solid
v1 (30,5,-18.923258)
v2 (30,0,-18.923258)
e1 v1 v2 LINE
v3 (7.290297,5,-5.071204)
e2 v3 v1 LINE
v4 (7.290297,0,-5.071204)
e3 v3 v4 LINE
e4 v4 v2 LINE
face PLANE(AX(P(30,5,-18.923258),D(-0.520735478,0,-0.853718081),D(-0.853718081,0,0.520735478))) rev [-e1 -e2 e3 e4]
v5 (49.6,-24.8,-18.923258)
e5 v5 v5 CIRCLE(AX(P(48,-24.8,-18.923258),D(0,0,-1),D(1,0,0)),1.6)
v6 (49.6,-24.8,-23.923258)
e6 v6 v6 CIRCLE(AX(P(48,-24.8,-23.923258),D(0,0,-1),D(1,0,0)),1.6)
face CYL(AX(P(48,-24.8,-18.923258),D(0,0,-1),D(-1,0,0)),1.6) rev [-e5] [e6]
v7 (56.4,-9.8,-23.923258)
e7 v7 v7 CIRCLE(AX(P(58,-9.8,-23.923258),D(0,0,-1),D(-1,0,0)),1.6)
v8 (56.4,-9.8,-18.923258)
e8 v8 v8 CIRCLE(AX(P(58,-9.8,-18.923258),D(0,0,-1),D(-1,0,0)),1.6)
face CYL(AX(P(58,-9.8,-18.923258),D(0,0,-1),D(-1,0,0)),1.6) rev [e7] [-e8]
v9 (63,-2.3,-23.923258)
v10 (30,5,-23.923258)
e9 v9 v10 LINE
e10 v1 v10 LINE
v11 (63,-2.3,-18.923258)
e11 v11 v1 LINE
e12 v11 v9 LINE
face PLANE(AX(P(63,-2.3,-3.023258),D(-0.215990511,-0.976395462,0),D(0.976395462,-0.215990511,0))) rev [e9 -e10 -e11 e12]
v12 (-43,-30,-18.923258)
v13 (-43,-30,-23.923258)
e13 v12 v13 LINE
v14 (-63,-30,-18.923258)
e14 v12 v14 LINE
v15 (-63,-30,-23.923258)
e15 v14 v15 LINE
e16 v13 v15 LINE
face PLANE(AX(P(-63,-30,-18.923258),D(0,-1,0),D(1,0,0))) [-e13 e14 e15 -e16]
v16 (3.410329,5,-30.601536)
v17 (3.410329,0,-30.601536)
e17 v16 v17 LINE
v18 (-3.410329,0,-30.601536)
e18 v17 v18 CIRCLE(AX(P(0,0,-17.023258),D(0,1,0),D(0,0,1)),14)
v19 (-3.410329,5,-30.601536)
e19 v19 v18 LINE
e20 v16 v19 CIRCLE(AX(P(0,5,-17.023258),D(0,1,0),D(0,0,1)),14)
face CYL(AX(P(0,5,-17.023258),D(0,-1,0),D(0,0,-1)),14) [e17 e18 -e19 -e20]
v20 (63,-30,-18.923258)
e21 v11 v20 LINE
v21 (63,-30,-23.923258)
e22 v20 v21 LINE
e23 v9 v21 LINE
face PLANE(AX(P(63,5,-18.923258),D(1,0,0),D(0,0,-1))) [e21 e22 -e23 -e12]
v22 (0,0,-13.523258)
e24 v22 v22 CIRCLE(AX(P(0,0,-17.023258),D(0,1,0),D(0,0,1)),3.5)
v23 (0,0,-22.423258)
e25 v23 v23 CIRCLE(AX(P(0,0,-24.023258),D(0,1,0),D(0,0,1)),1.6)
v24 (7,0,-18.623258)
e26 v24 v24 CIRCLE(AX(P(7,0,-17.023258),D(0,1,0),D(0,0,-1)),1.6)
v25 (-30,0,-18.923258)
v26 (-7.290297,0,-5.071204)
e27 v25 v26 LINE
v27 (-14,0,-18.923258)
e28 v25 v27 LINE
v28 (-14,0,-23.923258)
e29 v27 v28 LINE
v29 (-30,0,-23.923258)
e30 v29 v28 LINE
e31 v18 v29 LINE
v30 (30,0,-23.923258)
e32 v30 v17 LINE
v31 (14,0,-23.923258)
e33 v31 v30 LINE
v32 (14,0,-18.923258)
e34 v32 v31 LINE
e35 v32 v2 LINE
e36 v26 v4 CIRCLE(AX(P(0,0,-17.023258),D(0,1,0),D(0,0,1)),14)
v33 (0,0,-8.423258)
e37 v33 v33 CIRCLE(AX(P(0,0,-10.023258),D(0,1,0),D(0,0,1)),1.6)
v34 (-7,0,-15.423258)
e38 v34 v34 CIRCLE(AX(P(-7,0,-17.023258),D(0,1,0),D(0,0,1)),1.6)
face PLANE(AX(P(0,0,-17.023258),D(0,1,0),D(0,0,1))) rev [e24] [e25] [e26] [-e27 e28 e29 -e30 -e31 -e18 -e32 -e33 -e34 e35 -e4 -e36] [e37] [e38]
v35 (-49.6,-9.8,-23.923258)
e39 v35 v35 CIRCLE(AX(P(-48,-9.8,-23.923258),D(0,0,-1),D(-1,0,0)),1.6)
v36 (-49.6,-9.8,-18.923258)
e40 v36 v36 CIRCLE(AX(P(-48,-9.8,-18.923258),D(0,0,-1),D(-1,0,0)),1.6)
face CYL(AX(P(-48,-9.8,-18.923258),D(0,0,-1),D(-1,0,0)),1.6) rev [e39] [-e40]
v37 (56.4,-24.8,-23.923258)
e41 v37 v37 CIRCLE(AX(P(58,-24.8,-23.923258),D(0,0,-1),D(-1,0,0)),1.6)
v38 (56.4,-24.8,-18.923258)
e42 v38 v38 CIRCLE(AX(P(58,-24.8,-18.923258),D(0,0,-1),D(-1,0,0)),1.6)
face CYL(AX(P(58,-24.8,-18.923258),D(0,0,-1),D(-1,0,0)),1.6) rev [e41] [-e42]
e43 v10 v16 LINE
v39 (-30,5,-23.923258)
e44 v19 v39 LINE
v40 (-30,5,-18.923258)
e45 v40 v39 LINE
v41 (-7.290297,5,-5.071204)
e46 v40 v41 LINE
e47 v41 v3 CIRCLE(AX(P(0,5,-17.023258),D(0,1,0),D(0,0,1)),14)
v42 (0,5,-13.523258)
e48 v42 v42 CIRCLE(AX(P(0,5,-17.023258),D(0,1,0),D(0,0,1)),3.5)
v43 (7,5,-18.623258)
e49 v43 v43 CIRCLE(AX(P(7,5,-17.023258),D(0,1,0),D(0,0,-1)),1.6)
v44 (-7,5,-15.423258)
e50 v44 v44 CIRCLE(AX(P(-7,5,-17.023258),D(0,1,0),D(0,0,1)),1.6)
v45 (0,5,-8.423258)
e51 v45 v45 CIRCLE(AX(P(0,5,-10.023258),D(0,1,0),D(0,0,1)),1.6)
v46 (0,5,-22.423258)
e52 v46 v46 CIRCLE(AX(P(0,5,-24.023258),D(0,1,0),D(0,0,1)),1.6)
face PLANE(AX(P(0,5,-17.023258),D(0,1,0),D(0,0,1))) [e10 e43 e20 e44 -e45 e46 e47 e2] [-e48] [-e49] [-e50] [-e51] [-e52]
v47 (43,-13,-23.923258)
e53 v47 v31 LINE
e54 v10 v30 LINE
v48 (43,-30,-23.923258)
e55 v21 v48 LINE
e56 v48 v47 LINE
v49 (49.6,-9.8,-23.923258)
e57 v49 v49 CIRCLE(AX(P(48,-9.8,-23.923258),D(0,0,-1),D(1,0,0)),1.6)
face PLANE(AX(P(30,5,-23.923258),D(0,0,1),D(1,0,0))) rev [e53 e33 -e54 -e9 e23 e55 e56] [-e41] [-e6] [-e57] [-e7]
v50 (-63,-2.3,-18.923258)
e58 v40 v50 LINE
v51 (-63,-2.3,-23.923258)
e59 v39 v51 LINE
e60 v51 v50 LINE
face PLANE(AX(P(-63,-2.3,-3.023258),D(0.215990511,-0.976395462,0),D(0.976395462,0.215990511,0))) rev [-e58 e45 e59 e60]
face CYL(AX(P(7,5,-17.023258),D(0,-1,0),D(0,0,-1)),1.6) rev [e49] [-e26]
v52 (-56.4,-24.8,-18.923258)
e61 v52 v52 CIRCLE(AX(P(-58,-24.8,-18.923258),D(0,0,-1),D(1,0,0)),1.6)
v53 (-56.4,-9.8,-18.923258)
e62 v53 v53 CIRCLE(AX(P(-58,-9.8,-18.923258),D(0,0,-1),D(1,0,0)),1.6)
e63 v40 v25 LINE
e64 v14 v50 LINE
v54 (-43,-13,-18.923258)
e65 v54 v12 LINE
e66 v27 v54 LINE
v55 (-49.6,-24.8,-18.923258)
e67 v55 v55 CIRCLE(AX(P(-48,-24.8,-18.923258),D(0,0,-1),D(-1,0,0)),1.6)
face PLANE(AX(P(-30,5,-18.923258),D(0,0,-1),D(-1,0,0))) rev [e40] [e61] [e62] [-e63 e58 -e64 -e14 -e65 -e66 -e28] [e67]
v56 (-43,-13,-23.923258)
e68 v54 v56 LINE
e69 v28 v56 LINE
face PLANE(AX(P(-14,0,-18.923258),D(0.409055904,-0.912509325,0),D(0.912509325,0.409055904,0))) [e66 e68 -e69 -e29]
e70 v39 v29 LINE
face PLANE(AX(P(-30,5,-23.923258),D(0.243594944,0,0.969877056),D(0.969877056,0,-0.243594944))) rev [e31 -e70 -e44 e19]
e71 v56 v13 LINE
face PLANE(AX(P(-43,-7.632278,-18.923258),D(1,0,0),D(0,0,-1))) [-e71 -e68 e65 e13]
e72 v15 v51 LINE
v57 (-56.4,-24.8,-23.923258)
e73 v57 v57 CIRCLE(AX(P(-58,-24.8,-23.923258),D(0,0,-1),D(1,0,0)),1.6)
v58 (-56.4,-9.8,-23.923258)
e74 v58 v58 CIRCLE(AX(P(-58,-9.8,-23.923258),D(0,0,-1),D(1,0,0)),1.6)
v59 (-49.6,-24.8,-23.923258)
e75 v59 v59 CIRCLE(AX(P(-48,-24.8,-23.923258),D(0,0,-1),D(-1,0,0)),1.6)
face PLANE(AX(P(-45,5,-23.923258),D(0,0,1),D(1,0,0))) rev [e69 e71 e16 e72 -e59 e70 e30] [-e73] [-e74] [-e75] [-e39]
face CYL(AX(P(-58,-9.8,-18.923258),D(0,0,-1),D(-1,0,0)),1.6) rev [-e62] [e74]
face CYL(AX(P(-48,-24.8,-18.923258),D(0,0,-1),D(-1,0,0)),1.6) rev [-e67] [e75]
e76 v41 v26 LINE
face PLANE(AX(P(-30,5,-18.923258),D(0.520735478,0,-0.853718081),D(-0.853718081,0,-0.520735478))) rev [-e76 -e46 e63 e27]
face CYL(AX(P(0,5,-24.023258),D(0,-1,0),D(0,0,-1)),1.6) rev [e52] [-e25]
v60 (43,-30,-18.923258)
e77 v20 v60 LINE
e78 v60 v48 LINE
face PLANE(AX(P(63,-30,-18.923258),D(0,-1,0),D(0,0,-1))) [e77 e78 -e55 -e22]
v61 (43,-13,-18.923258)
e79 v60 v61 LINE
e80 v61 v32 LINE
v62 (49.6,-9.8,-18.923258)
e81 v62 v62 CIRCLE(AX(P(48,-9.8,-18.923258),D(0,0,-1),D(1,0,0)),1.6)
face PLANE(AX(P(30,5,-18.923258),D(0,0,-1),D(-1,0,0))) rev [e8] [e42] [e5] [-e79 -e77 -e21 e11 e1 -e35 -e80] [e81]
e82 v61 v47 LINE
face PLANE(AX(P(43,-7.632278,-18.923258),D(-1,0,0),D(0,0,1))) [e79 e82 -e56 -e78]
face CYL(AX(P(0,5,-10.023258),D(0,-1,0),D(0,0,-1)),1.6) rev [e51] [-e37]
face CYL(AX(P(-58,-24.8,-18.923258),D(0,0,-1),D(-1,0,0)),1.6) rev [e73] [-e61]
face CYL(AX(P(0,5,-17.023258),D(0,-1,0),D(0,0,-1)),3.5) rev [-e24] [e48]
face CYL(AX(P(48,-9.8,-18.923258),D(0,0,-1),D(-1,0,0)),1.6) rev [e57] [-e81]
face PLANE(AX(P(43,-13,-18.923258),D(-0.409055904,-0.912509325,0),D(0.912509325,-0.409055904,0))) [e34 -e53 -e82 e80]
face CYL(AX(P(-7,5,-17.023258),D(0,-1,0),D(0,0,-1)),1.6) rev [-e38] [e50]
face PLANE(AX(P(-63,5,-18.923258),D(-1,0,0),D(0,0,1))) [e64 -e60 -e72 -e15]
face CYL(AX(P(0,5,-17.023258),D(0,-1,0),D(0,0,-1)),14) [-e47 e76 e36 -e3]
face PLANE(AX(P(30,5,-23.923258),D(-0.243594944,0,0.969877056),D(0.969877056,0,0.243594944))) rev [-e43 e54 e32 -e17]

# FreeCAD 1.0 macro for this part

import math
import FreeCAD as App
import Part
import Sketcher
from FreeCAD import Vector


def add_polygon(sketch, points):
    """Adds a closed chain of lines whose ends are joined by coincident constraints."""
    first, n = sketch.GeometryCount, len(points)
    for a, b in zip(points, points[1:] + points[:1]):
        sketch.addGeometry(Part.LineSegment(App.Vector(*a, 0), App.Vector(*b, 0)), False)
    for i in range(n):
        sketch.addConstraint(Sketcher.Constraint("Coincident", first + i, 2, first + (i + 1) % n, 1))

doc = App.newDocument("Part")
body = doc.addObject("PartDesign::Body", "Body")

# Sketch on XZ plane
sketch1 = body.newObject("Sketcher::SketchObject", "Sketch")
sketch1.AttachmentSupport = (doc.getObject("XZ_Plane"), [""])
sketch1.MapMode = "FlatFace"
sketch1.addGeometry(Part.LineSegment(Vector(45, -23.923258, 0), Vector(30, -23.923258, 0)), False)
sketch1.addGeometry(Part.LineSegment(Vector(30, -23.923258, 0), Vector(3.410329, -30.601536, 0)), False)
sketch1.addGeometry(Part.ArcOfCircle(Part.Circle(Vector(0, -17.023257, 0), Vector(0, 0, 1), 14), math.radians(-104.098814), math.radians(-75.901186)), False)
sketch1.addGeometry(Part.LineSegment(Vector(-3.410329, -30.601536, 0), Vector(-30, -23.923258, 0)), False)
sketch1.addGeometry(Part.LineSegment(Vector(-30, -23.923258, 0), Vector(-45, -23.923258, 0)), False)
sketch1.addGeometry(Part.LineSegment(Vector(-45, -23.923258, 0), Vector(-45, -18.923258, 0)), False)
sketch1.addGeometry(Part.LineSegment(Vector(-45, -18.923258, 0), Vector(-30, -18.923258, 0)), False)
sketch1.addGeometry(Part.LineSegment(Vector(-30, -18.923258, 0), Vector(-7.290297, -5.071204, 0)), False)
sketch1.addGeometry(Part.ArcOfCircle(Part.Circle(Vector(0, -17.023258, 0), Vector(0, 0, 1), 14), math.radians(58.618401), math.radians(121.381599)), False)
sketch1.addGeometry(Part.LineSegment(Vector(7.290297, -5.071204, 0), Vector(30, -18.923258, 0)), False)
sketch1.addGeometry(Part.LineSegment(Vector(30, -18.923258, 0), Vector(45, -18.923258, 0)), False)
sketch1.addGeometry(Part.LineSegment(Vector(45, -18.923258, 0), Vector(45, -23.923258, 0)), False)
sketch1.addGeometry(Part.Circle(Vector(0, -10.023258, 0), Vector(0, 0, 1), 1.6), False)
sketch1.addGeometry(Part.Circle(Vector(7, -17.023258, 0), Vector(0, 0, 1), 1.6), False)
sketch1.addGeometry(Part.Circle(Vector(0, -17.023258, 0), Vector(0, 0, 1), 3.5), False)
sketch1.addGeometry(Part.Circle(Vector(-7, -17.023258, 0), Vector(0, 0, 1), 1.6), False)
sketch1.addGeometry(Part.Circle(Vector(0, -24.023258, 0), Vector(0, 0, 1), 1.6), False)
sketch1.addConstraint(Sketcher.Constraint("Coincident", 0, 2, 1, 1))
sketch1.addConstraint(Sketcher.Constraint("Tangent", 1, 2, 2, 2))
sketch1.addConstraint(Sketcher.Constraint("Tangent", 2, 1, 3, 1))
sketch1.addConstraint(Sketcher.Constraint("Coincident", 3, 2, 4, 1))
sketch1.addConstraint(Sketcher.Constraint("Coincident", 4, 2, 5, 1))
sketch1.addConstraint(Sketcher.Constraint("Coincident", 5, 2, 6, 1))
sketch1.addConstraint(Sketcher.Constraint("Coincident", 6, 2, 7, 1))
sketch1.addConstraint(Sketcher.Constraint("Tangent", 7, 2, 8, 2))
sketch1.addConstraint(Sketcher.Constraint("Tangent", 8, 1, 9, 1))
sketch1.addConstraint(Sketcher.Constraint("Coincident", 9, 2, 10, 1))
sketch1.addConstraint(Sketcher.Constraint("Coincident", 10, 2, 11, 1))
sketch1.addConstraint(Sketcher.Constraint("Coincident", 11, 2, 0, 1))
sketch1.addConstraint(Sketcher.Constraint("Horizontal", 0))
sketch1.addConstraint(Sketcher.Constraint("Horizontal", 4))
sketch1.addConstraint(Sketcher.Constraint("Vertical", 5))
sketch1.addConstraint(Sketcher.Constraint("Horizontal", 6))
sketch1.addConstraint(Sketcher.Constraint("Horizontal", 10))
sketch1.addConstraint(Sketcher.Constraint("Vertical", 11))
sketch1.addConstraint(Sketcher.Constraint("Coincident", 8, 3, 2, 3))
sketch1.addConstraint(Sketcher.Constraint("Coincident", 14, 3, 2, 3))
sketch1.addConstraint(Sketcher.Constraint("Equal", 2, 8))
sketch1.addConstraint(Sketcher.Constraint("Equal", 12, 13))
sketch1.addConstraint(Sketcher.Constraint("Equal", 13, 15))
sketch1.addConstraint(Sketcher.Constraint("Equal", 15, 16))
sketch1.addConstraint(Sketcher.Constraint("Symmetric", 13, 3, 15, 3, -2))
sketch1.addConstraint(Sketcher.Constraint("Symmetric", 1, 2, 2, 1, -2))
sketch1.addConstraint(Sketcher.Constraint("Symmetric", 6, 2, 9, 2, -2))
sketch1.addConstraint(Sketcher.Constraint("Symmetric", 4, 2, 11, 2, -2))
sketch1.addConstraint(Sketcher.Constraint("PointOnObject", 12, 3, -2))
sketch1.addConstraint(Sketcher.Constraint("PointOnObject", 16, 3, -2))
sketch1.addConstraint(Sketcher.Constraint("Horizontal", 8, 3, 13, 3))
sketch1.addConstraint(Sketcher.Constraint("Vertical", 3, 2, 6, 2))
sketch1.addConstraint(Sketcher.Constraint("Diameter", 14, 7.0))
sketch1.addConstraint(Sketcher.Constraint("Radius", 2, 14.0))
sketch1.addConstraint(Sketcher.Constraint("Diameter", 12, 3.2))
sketch1.addConstraint(Sketcher.Constraint("DistanceX", 0, 2, 0, 1, 15.0))
sketch1.addConstraint(Sketcher.Constraint("DistanceY", 5, 1, 5, 2, 5.0))
sketch1.addConstraint(Sketcher.Constraint("DistanceX", -1, 1, 13, 3, 7.0))
sketch1.addConstraint(Sketcher.Constraint("DistanceX", -1, 1, 0, 2, 30.0))
sketch1.addConstraint(Sketcher.Constraint("DistanceY", 2, 3, 12, 3, 7.0))
sketch1.addConstraint(Sketcher.Constraint("DistanceY", 16, 3, 14, 3, 7.0))
sketch1.addConstraint(Sketcher.Constraint("DistanceY", 0, 2, 13, 3, 6.9))
sketch1.addConstraint(Sketcher.Constraint("DistanceY", 2, 3, -1, 1, 17.023257))
pad1 = body.newObject("PartDesign::Pad", "Pad")
pad1.Profile = sketch1
pad1.Length = 5
pad1.Reversed = True

# Sketch on XY plane
sketch2 = body.newObject("Sketcher::SketchObject", "Sketch001")
sketch2.AttachmentSupport = (doc.getObject("XY_Plane"), [""])
sketch2.MapMode = "FlatFace"
sketch2.AttachmentOffset = App.Placement(Vector(0, 0, -23.923258), App.Rotation())
add_polygon(sketch2, [(63, 5), (63, -30), (43, -30), (43, 5)])  # lines 0-3
sketch2.addGeometry(Part.Circle(Vector(58, -24.8, 0), Vector(0, 0, 1), 1.6), False)  # 4
sketch2.addGeometry(Part.Circle(Vector(48, -24.8, 0), Vector(0, 0, 1), 1.6), False)  # 5
sketch2.addGeometry(Part.Circle(Vector(58, -9.8, 0), Vector(0, 0, 1), 1.6), False)  # 6
sketch2.addGeometry(Part.Circle(Vector(48, -9.8, 0), Vector(0, 0, 1), 1.6), False)  # 7
add_polygon(sketch2, [(-43, -30), (-63, -30), (-63, 5), (-43, 5)])  # lines 8-11
sketch2.addGeometry(Part.Circle(Vector(-48, -24.8, 0), Vector(0, 0, 1), 1.6), False)  # 12
sketch2.addGeometry(Part.Circle(Vector(-58, -24.8, 0), Vector(0, 0, 1), 1.6), False)  # 13
sketch2.addGeometry(Part.Circle(Vector(-48, -9.8, 0), Vector(0, 0, 1), 1.6), False)  # 14
sketch2.addGeometry(Part.Circle(Vector(-58, -9.8, 0), Vector(0, 0, 1), 1.6), False)  # 15
sketch2.addConstraint(Sketcher.Constraint("Vertical", 0))
sketch2.addConstraint(Sketcher.Constraint("Horizontal", 1))
sketch2.addConstraint(Sketcher.Constraint("Vertical", 2))
sketch2.addConstraint(Sketcher.Constraint("Horizontal", 3))
sketch2.addConstraint(Sketcher.Constraint("Horizontal", 8))
sketch2.addConstraint(Sketcher.Constraint("Vertical", 9))
sketch2.addConstraint(Sketcher.Constraint("Horizontal", 10))
sketch2.addConstraint(Sketcher.Constraint("Vertical", 11))
sketch2.addConstraint(Sketcher.Constraint("Equal", 4, 5))
sketch2.addConstraint(Sketcher.Constraint("Equal", 5, 6))
sketch2.addConstraint(Sketcher.Constraint("Equal", 6, 7))
sketch2.addConstraint(Sketcher.Constraint("Equal", 7, 12))
sketch2.addConstraint(Sketcher.Constraint("Equal", 12, 13))
sketch2.addConstraint(Sketcher.Constraint("Equal", 13, 14))
sketch2.addConstraint(Sketcher.Constraint("Equal", 14, 15))
sketch2.addConstraint(Sketcher.Constraint("Symmetric", 5, 3, 12, 3, -2))
sketch2.addConstraint(Sketcher.Constraint("Symmetric", 4, 3, 13, 3, -2))
sketch2.addConstraint(Sketcher.Constraint("Symmetric", 7, 3, 14, 3, -2))
sketch2.addConstraint(Sketcher.Constraint("Symmetric", 6, 3, 15, 3, -2))
sketch2.addConstraint(Sketcher.Constraint("Symmetric", 0, 2, 8, 2, -2))
sketch2.addConstraint(Sketcher.Constraint("Symmetric", 2, 2, 10, 2, -2))
sketch2.addConstraint(Sketcher.Constraint("Horizontal", 4, 3, 5, 3))
sketch2.addConstraint(Sketcher.Constraint("Horizontal", 6, 3, 7, 3))
sketch2.addConstraint(Sketcher.Constraint("Vertical", 4, 3, 6, 3))
sketch2.addConstraint(Sketcher.Constraint("Vertical", 5, 3, 7, 3))
sketch2.addConstraint(Sketcher.Constraint("Diameter", 4, 3.2))
sketch2.addConstraint(Sketcher.Constraint("DistanceX", 1, 2, 1, 1, 20.0))
sketch2.addConstraint(Sketcher.Constraint("DistanceY", 0, 2, 0, 1, 35.0))
sketch2.addConstraint(Sketcher.Constraint("DistanceX", -1, 1, 4, 3, 58.0))
sketch2.addConstraint(Sketcher.Constraint("DistanceX", -1, 1, 5, 3, 48.0))
sketch2.addConstraint(Sketcher.Constraint("DistanceX", -1, 1, 0, 2, 63.0))
sketch2.addConstraint(Sketcher.Constraint("DistanceY", 0, 2, -1, 1, 30.0))
sketch2.addConstraint(Sketcher.Constraint("DistanceY", 4, 3, 6, 3, 15.0))
sketch2.addConstraint(Sketcher.Constraint("DistanceY", 4, 3, -1, 1, 24.8))
pad2 = body.newObject("PartDesign::Pad", "Pad001")
pad2.Profile = sketch2
pad2.Length = 5

# Sketch on XY plane
sketch3 = body.newObject("Sketcher::SketchObject", "Sketch002")
sketch3.AttachmentSupport = (doc.getObject("XY_Plane"), [""])
sketch3.MapMode = "FlatFace"
sketch3.AttachmentOffset = App.Placement(Vector(0, 0, -23.923258), App.Rotation())
add_polygon(sketch3, [(-14, 0), (-43, -13), (-43, 0)])  # lines 0-2
add_polygon(sketch3, [(14, 0), (43, 0), (43, -13)])  # lines 3-5
sketch3.addConstraint(Sketcher.Constraint("Vertical", 1))
sketch3.addConstraint(Sketcher.Constraint("Horizontal", 2))
sketch3.addConstraint(Sketcher.Constraint("Horizontal", 3))
sketch3.addConstraint(Sketcher.Constraint("Vertical", 4))
sketch3.addConstraint(Sketcher.Constraint("Symmetric", 1, 2, 3, 2, -1, 1))
sketch3.addConstraint(Sketcher.Constraint("Symmetric", 2, 2, 5, 2, -2))
sketch3.addConstraint(Sketcher.Constraint("Horizontal", 0, 2, 4, 2))
sketch3.addConstraint(Sketcher.Constraint("DistanceX", 2, 1, 2, 2, 29.0))
sketch3.addConstraint(Sketcher.Constraint("DistanceY", 1, 1, 1, 2, 13.0))
sketch3.addConstraint(Sketcher.Constraint("DistanceX", 0, 2, -1, 1, 43.0))
pad3 = body.newObject("PartDesign::Pad", "Pad002")
pad3.Profile = sketch3
pad3.Length = 5

# Sketch on XY plane
sketch4 = body.newObject("Sketcher::SketchObject", "Sketch003")
sketch4.AttachmentSupport = (doc.getObject("XY_Plane"), [""])
sketch4.MapMode = "FlatFace"
sketch4.AttachmentOffset = App.Placement(Vector(0, 0, -23.923258), App.Rotation())
add_polygon(sketch4, [(63, -2.3), (30, 5), (63, 5)])  # lines 0-2
add_polygon(sketch4, [(-30, 5), (-63, -2.3), (-63, 5)])  # lines 3-5
sketch4.addConstraint(Sketcher.Constraint("Horizontal", 1))
sketch4.addConstraint(Sketcher.Constraint("Vertical", 2))
sketch4.addConstraint(Sketcher.Constraint("Vertical", 4))
sketch4.addConstraint(Sketcher.Constraint("Horizontal", 5))
sketch4.addConstraint(Sketcher.Constraint("Symmetric", 2, 2, 3, 2, -2))
sketch4.addConstraint(Sketcher.Constraint("Symmetric", 0, 2, 5, 2, -2))
sketch4.addConstraint(Sketcher.Constraint("DistanceX", 1, 1, 1, 2, 33.0))
sketch4.addConstraint(Sketcher.Constraint("DistanceY", 2, 2, 2, 1, 7.3))
sketch4.addConstraint(Sketcher.Constraint("DistanceX", -1, 1, 0, 2, 30.0))
sketch4.addConstraint(Sketcher.Constraint("DistanceY", -1, 1, 0, 2, 5.0))
pocket1 = body.newObject("PartDesign::Pocket", "Pocket")
pocket1.Profile = sketch4
pocket1.Type = "ThroughAll"
pocket1.Reversed = True

doc.recompute()
